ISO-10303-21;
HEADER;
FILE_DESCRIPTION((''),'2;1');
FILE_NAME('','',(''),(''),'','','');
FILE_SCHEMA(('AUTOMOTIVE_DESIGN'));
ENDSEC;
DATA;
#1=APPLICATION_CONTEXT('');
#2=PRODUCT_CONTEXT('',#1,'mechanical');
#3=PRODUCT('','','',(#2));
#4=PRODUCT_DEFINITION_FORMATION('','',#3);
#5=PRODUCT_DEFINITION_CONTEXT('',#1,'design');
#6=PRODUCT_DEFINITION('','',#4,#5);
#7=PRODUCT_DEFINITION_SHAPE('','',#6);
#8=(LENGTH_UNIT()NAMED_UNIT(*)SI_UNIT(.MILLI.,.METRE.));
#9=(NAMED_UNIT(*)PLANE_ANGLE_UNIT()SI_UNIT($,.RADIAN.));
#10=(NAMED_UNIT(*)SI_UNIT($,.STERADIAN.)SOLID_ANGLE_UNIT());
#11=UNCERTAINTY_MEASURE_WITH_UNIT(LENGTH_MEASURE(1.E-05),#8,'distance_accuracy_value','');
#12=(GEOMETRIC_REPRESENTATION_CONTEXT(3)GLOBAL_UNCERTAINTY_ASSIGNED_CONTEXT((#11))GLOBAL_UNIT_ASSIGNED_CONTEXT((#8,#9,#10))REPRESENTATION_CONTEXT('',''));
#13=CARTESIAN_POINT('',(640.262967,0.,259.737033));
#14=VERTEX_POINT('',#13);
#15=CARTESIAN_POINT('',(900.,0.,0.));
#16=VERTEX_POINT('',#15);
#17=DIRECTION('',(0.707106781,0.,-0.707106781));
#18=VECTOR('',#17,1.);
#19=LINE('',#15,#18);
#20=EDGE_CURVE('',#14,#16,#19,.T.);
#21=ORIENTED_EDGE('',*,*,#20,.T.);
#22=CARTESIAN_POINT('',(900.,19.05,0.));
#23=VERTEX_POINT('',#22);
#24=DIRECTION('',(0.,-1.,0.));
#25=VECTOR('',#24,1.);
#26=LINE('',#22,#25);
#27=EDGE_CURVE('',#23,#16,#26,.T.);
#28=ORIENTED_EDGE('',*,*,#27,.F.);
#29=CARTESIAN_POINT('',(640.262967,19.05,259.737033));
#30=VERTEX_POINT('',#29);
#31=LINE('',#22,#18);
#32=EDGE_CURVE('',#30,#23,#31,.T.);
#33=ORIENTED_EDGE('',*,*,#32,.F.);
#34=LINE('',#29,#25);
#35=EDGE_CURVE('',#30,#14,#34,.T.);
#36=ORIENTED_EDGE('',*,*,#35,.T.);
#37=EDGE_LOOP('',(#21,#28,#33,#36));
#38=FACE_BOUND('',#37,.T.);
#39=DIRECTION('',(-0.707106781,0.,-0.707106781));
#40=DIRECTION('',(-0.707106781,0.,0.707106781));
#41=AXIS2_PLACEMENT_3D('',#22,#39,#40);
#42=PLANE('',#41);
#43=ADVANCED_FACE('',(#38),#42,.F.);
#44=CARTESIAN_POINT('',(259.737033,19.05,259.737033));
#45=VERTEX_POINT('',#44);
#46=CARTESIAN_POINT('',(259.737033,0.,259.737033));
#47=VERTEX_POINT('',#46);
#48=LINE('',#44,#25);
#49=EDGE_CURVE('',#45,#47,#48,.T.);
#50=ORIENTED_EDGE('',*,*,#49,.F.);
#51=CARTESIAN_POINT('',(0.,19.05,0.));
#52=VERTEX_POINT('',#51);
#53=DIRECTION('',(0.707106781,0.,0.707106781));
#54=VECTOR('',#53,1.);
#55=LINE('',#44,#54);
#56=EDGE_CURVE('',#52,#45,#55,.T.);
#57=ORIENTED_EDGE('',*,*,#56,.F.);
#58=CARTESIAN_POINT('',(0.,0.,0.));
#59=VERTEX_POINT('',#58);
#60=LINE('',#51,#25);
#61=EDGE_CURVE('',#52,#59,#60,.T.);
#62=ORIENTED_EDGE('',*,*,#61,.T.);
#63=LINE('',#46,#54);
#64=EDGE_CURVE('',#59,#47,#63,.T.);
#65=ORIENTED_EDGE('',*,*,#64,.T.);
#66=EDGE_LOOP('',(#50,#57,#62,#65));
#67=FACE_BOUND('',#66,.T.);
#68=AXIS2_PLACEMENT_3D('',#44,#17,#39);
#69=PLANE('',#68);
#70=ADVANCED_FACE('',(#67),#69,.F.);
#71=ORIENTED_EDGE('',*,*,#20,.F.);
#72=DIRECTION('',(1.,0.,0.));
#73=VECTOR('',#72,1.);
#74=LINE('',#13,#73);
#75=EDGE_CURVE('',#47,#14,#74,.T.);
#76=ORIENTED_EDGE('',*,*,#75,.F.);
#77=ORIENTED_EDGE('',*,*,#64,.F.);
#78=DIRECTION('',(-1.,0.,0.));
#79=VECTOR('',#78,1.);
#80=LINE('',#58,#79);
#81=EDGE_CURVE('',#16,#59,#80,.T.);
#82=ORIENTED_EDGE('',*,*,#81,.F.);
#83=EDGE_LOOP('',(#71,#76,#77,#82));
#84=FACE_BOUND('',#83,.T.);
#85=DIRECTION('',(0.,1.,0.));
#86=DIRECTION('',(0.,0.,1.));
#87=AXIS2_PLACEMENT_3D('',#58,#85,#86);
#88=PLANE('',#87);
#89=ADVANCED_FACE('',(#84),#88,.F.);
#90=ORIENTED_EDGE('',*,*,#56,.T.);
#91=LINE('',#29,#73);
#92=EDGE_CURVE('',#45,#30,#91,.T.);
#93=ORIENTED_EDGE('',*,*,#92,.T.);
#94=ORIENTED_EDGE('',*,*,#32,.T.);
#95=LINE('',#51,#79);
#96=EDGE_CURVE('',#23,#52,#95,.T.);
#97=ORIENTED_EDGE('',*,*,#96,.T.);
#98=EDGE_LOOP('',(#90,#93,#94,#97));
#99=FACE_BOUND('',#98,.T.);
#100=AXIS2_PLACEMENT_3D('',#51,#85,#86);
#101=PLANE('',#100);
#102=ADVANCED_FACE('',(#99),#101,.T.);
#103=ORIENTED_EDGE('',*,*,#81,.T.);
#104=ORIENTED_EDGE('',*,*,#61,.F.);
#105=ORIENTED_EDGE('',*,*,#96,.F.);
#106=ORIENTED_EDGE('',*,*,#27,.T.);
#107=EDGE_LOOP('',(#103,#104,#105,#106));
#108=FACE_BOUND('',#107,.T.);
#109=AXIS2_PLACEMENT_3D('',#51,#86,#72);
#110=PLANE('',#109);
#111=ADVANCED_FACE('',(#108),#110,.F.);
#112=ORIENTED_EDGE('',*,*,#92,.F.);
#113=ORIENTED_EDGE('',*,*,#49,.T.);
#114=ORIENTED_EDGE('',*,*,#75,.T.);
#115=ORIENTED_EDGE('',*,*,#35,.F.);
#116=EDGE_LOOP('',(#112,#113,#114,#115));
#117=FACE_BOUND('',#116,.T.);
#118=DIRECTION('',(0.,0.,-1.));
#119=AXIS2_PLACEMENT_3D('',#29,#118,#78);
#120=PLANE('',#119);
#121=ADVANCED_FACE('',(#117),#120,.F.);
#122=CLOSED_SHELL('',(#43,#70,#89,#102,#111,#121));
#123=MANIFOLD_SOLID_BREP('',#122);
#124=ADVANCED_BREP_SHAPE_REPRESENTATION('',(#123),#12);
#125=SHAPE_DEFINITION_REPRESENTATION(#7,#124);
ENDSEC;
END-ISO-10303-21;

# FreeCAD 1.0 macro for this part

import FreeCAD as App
import Part
import Sketcher
from FreeCAD import Vector


def add_polygon(sketch, points):
    """Adds a closed chain of lines whose ends are joined by coincident constraints."""
    first, n = sketch.GeometryCount, len(points)
    for a, b in zip(points, points[1:] + points[:1]):
        sketch.addGeometry(Part.LineSegment(App.Vector(*a, 0), App.Vector(*b, 0)), False)
    for i in range(n):
        sketch.addConstraint(Sketcher.Constraint("Coincident", first + i, 2, first + (i + 1) % n, 1))

doc = App.newDocument("Part")
body = doc.addObject("PartDesign::Body", "Body")

sketch1 = doc.addObject("Sketcher::SketchObject", "Sketch")
body.addObject(sketch1)
sketch1.AttachmentSupport = (doc.XZ_Plane, [""])
sketch1.MapMode = "FlatFace"
add_polygon(sketch1, [(900, 0), (0, 0), (260, 260), (640, 260)])
sketch1.addConstraint([
    Sketcher.Constraint("Horizontal", 0),
    Sketcher.Constraint("Horizontal", 2),
    Sketcher.Constraint("Coincident", 0, 2, -1, 1),
    Sketcher.Constraint("Perpendicular", 1, 3),
    Sketcher.Constraint("Equal", 1, 3),
    Sketcher.Constraint("DistanceX", 0, 2, 0, 1, 900.0),
    Sketcher.Constraint("DistanceX", 2, 1, 2, 2, 380.525934),
])
pad1 = doc.addObject("PartDesign::Pad", "Pad")
body.addObject(pad1)
pad1.Profile = sketch1
pad1.Length = 19.05
pad1.Reversed = True

doc.recompute()
